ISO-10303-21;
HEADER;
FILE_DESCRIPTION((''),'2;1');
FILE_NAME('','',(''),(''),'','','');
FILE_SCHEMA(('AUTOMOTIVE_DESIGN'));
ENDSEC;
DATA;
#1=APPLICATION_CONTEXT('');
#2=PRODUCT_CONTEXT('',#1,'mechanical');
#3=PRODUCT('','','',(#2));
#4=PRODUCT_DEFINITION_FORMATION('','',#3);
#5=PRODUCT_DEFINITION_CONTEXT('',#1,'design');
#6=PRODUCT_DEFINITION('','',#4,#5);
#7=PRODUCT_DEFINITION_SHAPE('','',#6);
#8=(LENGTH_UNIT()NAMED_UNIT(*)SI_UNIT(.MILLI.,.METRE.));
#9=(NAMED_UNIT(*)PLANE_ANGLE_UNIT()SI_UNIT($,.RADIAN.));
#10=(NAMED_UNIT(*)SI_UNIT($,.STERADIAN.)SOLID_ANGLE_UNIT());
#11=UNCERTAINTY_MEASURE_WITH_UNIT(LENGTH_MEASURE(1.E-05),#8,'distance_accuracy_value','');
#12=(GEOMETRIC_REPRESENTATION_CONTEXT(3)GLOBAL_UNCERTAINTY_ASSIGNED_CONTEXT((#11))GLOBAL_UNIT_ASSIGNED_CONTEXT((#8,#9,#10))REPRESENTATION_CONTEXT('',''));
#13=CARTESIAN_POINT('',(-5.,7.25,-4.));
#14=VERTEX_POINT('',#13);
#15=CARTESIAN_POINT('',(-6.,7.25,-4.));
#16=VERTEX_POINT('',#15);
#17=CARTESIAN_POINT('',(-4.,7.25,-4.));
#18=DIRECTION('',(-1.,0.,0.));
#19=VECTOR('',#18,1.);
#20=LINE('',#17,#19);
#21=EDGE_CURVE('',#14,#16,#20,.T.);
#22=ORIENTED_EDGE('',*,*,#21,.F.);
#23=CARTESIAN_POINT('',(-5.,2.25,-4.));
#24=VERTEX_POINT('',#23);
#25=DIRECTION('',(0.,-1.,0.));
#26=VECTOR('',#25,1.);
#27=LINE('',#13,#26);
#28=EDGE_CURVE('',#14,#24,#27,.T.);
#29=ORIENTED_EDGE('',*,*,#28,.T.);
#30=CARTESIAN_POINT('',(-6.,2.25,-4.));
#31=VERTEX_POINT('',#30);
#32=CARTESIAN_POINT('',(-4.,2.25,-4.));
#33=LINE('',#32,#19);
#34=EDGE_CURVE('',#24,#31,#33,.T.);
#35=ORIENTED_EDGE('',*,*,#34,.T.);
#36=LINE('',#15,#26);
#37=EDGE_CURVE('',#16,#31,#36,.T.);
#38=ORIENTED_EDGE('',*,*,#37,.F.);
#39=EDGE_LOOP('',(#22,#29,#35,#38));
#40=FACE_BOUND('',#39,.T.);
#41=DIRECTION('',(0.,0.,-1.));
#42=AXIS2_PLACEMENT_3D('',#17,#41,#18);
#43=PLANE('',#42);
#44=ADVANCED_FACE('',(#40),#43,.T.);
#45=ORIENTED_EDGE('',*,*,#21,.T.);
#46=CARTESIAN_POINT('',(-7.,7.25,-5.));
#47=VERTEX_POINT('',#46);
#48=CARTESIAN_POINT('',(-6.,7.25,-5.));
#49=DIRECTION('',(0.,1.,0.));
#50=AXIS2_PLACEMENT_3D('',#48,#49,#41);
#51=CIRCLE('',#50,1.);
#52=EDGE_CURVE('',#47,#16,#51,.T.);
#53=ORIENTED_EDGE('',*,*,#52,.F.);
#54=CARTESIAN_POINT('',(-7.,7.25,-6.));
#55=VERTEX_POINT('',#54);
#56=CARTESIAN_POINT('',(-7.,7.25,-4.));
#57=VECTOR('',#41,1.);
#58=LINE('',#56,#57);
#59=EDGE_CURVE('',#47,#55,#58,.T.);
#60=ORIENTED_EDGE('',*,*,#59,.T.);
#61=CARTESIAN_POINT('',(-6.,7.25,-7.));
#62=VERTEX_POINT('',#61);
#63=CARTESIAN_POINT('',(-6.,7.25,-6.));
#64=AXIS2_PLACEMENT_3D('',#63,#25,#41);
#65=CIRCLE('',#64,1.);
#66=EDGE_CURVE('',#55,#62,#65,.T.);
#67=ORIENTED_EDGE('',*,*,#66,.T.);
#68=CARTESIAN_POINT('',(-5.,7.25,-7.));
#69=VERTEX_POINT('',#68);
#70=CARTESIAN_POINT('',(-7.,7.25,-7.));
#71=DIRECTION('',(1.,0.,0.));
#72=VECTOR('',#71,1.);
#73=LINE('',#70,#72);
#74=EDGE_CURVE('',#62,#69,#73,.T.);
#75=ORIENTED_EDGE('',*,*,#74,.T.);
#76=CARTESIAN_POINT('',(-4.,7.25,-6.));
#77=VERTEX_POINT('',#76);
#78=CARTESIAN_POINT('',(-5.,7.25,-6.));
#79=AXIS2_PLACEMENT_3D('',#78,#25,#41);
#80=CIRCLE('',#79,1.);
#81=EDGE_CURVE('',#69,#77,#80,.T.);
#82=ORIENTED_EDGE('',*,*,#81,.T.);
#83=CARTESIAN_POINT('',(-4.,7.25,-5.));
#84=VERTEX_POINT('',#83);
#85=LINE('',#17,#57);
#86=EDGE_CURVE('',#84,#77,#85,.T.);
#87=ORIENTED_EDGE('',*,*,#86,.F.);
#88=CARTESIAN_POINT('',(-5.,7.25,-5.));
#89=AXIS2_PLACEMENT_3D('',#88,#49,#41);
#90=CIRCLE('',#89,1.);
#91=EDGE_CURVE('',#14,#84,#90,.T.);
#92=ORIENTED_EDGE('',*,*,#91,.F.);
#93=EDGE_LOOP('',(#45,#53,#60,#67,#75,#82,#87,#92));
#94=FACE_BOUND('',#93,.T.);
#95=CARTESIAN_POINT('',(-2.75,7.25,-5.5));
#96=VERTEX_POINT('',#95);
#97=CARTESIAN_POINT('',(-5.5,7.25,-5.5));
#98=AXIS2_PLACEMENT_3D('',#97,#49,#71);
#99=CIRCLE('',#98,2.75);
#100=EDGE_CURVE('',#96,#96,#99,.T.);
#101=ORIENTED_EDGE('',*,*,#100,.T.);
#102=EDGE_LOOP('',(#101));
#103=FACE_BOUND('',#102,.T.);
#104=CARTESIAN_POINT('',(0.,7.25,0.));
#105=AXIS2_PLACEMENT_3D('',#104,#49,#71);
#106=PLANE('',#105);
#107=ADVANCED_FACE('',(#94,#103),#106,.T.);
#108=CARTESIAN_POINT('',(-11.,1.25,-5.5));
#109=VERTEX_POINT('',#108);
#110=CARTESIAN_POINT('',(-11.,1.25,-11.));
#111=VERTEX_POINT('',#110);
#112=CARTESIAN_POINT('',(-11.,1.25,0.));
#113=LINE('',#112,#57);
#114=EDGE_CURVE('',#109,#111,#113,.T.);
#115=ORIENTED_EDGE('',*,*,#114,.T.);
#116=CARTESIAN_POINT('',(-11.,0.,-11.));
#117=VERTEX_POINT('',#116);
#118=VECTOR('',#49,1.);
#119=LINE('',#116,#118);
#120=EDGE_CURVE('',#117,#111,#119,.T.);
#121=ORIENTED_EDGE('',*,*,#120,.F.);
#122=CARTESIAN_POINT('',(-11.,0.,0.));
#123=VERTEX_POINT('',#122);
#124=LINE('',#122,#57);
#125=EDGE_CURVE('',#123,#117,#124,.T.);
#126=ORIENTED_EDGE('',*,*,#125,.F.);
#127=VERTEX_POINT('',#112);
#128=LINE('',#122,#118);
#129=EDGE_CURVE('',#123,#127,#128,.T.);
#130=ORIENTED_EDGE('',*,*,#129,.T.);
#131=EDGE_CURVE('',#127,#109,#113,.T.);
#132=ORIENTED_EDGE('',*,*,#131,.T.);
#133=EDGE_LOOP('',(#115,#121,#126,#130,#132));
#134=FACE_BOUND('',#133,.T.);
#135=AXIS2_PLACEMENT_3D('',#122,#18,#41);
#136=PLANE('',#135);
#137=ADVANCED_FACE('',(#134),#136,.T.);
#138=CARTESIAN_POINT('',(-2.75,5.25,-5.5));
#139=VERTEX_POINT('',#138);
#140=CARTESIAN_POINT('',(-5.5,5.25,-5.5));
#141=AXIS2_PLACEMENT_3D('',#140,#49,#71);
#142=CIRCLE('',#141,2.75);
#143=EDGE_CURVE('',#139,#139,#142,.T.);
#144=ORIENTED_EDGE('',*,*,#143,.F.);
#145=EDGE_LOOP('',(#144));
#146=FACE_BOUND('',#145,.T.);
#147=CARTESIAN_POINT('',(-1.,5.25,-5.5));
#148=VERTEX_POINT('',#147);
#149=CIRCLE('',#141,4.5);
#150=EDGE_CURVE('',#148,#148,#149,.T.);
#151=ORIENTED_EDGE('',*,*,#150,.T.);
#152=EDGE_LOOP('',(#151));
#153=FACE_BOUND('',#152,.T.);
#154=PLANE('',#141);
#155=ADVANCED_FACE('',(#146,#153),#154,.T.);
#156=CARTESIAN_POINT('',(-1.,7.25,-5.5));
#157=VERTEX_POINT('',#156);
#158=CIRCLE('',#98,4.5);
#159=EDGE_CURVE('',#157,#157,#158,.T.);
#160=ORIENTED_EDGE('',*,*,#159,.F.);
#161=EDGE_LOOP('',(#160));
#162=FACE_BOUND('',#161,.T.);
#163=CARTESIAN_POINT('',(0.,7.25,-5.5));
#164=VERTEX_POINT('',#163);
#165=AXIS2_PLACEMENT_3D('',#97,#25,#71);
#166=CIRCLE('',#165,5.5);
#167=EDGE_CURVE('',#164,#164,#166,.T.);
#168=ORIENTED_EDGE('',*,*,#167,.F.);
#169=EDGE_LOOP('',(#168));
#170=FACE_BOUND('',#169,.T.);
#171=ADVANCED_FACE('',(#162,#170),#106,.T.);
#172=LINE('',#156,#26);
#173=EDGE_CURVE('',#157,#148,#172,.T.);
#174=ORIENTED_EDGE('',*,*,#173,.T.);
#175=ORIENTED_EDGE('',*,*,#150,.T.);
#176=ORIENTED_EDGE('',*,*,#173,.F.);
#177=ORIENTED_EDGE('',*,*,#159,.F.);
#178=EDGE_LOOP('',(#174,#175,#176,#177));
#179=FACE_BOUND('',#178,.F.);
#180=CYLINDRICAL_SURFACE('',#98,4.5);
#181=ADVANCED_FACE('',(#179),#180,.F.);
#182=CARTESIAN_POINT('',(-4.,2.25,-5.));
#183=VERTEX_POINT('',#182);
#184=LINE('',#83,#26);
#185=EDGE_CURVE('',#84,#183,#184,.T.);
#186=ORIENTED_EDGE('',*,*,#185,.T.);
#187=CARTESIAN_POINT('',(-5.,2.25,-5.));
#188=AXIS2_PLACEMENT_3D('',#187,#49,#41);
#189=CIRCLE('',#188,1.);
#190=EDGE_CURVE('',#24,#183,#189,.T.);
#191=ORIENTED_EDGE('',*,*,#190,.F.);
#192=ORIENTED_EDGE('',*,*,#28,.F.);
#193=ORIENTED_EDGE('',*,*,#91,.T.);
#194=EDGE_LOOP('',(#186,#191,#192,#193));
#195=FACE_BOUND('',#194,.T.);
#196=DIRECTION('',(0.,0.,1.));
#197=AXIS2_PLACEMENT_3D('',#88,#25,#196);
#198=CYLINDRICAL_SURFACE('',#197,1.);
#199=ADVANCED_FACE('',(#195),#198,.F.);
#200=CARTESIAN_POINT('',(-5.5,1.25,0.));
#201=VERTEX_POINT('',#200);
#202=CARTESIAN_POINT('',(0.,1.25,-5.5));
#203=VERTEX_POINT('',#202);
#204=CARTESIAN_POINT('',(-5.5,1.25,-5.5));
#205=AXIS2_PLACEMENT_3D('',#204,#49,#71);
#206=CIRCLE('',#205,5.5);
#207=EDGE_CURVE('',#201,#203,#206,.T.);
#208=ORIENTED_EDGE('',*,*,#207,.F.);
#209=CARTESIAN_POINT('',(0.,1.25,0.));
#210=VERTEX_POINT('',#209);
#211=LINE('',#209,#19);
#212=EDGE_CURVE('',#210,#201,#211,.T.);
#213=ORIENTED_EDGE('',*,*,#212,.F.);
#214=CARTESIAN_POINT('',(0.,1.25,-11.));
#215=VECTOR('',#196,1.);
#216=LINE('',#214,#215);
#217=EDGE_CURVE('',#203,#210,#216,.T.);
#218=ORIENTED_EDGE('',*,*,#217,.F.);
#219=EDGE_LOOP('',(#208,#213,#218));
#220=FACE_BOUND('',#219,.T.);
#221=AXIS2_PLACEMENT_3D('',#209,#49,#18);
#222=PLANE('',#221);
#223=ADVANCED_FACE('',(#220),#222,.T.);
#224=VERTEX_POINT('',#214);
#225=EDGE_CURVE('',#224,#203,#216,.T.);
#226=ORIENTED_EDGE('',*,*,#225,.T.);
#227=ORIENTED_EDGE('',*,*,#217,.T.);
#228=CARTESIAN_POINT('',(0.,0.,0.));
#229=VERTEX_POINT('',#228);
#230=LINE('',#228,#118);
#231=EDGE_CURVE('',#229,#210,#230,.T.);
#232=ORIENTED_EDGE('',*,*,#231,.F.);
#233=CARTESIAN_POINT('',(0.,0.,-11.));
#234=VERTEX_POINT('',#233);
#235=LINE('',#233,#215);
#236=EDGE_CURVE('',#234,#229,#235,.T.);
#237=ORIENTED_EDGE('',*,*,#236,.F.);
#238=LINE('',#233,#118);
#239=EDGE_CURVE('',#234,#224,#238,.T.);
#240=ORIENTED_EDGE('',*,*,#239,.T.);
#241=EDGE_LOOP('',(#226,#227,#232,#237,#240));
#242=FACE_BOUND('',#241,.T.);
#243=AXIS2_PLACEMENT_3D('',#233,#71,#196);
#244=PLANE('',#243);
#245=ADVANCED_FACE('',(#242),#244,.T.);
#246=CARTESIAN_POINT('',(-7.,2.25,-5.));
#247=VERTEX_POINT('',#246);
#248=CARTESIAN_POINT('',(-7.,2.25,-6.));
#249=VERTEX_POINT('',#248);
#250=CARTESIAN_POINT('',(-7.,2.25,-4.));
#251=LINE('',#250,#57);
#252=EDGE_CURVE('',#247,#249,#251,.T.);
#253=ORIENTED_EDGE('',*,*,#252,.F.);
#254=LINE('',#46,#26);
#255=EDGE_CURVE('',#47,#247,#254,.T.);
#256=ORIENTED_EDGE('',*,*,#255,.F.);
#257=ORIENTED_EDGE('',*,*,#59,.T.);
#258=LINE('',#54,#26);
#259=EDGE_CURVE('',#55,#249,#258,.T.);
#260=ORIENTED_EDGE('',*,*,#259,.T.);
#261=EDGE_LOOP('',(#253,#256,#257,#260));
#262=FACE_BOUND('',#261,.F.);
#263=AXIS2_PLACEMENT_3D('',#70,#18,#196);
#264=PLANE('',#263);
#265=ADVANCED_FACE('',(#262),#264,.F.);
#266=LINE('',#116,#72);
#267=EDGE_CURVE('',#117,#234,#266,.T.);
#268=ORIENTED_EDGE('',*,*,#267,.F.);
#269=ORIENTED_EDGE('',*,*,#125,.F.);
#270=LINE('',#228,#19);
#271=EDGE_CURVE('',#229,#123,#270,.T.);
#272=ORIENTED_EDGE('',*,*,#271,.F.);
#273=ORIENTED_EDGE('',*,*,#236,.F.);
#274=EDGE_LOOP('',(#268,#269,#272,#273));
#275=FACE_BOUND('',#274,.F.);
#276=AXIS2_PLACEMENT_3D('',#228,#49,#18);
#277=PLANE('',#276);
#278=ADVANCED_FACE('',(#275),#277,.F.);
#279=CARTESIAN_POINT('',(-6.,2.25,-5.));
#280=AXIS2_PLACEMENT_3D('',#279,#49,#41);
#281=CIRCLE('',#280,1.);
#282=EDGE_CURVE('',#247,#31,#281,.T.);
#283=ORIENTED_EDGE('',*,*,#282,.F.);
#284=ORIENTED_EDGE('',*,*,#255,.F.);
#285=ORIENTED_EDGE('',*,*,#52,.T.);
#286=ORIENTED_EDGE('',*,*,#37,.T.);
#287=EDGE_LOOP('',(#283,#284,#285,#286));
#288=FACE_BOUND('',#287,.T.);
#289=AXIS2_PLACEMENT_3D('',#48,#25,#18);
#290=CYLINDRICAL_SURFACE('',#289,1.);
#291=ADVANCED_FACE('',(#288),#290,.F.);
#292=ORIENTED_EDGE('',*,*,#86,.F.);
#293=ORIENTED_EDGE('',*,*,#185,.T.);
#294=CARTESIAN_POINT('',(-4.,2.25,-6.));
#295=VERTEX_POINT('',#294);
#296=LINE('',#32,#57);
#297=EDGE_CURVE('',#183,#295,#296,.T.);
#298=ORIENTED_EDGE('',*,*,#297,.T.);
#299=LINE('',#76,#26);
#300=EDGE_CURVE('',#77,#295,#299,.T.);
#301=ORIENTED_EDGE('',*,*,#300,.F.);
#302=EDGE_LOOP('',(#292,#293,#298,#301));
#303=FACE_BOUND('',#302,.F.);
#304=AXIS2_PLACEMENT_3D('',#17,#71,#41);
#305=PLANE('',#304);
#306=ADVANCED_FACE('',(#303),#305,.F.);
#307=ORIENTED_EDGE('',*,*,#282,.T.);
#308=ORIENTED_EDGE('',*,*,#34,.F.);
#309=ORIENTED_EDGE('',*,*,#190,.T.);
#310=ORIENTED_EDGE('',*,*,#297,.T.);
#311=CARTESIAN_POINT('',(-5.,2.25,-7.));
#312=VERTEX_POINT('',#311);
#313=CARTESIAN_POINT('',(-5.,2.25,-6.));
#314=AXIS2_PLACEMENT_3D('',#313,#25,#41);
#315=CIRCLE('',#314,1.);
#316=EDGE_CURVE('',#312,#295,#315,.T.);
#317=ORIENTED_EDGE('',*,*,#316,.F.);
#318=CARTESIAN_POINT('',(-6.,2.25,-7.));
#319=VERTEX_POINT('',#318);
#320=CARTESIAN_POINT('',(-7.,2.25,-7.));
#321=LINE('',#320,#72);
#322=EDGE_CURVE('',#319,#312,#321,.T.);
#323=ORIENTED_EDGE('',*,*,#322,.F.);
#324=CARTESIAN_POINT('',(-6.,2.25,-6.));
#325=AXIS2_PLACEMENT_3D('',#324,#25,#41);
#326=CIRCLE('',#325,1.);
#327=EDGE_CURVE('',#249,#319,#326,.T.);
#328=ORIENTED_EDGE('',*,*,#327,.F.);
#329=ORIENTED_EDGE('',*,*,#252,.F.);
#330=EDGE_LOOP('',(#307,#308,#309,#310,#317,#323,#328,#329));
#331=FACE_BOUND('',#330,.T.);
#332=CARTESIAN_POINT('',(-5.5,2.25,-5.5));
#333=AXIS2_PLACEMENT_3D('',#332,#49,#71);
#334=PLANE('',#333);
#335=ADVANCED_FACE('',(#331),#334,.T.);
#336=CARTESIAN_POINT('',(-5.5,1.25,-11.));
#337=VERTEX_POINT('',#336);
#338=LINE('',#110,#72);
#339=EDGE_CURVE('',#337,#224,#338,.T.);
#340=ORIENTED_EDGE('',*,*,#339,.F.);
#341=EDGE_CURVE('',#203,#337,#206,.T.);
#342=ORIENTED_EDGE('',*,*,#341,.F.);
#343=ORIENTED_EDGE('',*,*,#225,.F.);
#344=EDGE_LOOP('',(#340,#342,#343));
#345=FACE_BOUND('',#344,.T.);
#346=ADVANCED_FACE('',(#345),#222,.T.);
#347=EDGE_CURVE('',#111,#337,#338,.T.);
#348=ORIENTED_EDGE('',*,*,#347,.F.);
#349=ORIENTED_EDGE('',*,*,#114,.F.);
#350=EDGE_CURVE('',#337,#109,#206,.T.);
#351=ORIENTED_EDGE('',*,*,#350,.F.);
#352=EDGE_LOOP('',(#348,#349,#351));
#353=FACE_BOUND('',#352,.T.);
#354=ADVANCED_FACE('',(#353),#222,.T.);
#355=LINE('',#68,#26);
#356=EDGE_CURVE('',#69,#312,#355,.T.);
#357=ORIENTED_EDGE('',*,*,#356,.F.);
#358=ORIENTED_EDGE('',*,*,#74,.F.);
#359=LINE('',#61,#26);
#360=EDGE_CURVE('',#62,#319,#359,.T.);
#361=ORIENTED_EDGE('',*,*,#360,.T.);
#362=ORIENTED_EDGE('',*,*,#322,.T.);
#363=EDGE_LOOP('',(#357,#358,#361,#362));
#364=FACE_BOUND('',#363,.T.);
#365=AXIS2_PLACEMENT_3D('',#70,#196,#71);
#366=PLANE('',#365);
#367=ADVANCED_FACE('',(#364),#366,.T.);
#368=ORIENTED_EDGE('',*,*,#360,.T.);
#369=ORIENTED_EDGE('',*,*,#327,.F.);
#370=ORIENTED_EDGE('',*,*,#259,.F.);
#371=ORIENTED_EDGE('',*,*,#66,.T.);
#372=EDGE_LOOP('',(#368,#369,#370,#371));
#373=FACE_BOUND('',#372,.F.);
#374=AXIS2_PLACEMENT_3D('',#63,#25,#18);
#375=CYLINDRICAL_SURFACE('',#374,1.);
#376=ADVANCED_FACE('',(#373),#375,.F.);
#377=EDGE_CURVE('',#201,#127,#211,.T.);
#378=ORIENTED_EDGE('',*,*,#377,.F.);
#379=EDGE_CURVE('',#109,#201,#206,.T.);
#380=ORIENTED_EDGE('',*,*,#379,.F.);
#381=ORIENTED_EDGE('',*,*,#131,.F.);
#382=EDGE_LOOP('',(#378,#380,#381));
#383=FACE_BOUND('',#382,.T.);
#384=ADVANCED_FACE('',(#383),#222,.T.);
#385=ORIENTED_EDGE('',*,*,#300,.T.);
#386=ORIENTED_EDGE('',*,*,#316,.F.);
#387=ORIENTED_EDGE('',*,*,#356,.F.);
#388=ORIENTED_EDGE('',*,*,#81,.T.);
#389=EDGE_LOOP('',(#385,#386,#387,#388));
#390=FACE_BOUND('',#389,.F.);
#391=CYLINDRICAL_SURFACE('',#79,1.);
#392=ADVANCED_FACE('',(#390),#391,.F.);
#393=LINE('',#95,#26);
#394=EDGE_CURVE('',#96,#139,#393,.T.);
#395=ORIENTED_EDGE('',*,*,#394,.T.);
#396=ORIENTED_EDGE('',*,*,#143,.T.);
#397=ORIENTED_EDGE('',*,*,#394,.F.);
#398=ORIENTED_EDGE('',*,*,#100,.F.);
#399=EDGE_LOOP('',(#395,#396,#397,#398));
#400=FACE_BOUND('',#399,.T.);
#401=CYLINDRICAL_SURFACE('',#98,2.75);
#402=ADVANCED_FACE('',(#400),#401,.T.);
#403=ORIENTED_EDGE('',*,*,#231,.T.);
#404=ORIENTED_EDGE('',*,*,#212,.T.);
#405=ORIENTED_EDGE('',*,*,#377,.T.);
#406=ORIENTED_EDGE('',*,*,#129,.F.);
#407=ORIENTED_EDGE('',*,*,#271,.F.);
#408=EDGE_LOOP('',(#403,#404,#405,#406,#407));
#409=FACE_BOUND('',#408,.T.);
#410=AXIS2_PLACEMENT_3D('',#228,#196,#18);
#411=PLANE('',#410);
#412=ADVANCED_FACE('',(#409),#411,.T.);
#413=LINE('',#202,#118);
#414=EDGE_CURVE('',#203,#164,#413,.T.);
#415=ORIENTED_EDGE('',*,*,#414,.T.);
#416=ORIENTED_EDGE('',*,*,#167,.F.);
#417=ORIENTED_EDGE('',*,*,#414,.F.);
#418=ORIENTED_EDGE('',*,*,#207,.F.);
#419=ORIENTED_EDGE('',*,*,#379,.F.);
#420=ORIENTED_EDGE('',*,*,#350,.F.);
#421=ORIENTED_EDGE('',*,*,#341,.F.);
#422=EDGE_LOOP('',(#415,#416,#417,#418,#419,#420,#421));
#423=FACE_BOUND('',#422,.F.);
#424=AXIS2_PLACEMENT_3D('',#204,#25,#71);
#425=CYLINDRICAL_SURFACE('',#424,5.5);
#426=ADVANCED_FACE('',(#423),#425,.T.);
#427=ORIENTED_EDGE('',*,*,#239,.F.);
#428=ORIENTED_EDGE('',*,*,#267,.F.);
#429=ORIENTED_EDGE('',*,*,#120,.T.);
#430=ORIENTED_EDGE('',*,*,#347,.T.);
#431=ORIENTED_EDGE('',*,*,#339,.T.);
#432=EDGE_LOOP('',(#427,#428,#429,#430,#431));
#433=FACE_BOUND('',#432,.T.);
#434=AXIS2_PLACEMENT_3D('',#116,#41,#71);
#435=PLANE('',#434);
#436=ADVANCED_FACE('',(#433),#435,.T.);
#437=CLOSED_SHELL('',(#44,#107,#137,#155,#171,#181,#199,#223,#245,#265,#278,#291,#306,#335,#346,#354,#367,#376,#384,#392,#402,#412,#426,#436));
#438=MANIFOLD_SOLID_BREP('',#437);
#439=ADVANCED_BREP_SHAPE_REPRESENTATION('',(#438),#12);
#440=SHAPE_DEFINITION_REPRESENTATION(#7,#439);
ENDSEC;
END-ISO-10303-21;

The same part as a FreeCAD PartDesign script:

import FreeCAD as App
import Part
import Sketcher
from FreeCAD import Vector
Q = App.Units.Quantity


def edges_at(feature, points):
    """Names of the edges that pass closest to the given points."""
    edges = feature.Shape.Edges
    near = lambda p: min(range(len(edges)), key=lambda i: edges[i].distToShape(Part.Vertex(*p))[0])
    return sorted({f"Edge{near(p) + 1}" for p in points})


def add_polygon(sketch, points):
    """Adds a closed chain of lines whose ends are joined by coincident constraints."""
    first, n = sketch.GeometryCount, len(points)
    for a, b in zip(points, points[1:] + points[:1]):
        sketch.addGeometry(Part.LineSegment(App.Vector(*a, 0), App.Vector(*b, 0)), False)
    for i in range(n):
        sketch.addConstraint(Sketcher.Constraint("Coincident", first + i, 2, first + (i + 1) % n, 1))

doc = App.newDocument("Part")
body = doc.addObject("PartDesign::Body", "Body")

sketch1 = body.newObject("Sketcher::SketchObject", "Sketch")
sketch1.AttachmentSupport = (doc.getObject("XZ_Plane"), [""])
sketch1.MapMode = "FlatFace"
add_polygon(sketch1, [(-11, 0), (0, 0), (0, -11), (-11, -11)])
sketch1.addConstraint([
    Sketcher.Constraint("Horizontal", 0),
    Sketcher.Constraint("Vertical", 1),
    Sketcher.Constraint("Horizontal", 2),
    Sketcher.Constraint("Vertical", 3),
    Sketcher.Constraint("Coincident", 0, 2, -1, 1),
    Sketcher.Constraint("Equal", 2, 1),
    Sketcher.Constraint("DistanceX", 0, 1, 0, 2, Q("11 mm")),
])
pad1 = body.newObject("PartDesign::Pad", "Pad")
pad1.Profile = sketch1
pad1.Length = 1.25
pad1.Reversed = True

sketch2 = body.newObject("Sketcher::SketchObject", "Sketch001")
sketch2.AttachmentSupport = (doc.getObject("XZ_Plane"), [""])
sketch2.MapMode = "FlatFace"
sketch2.AttachmentOffset = App.Placement(Vector(0, 0, -1.25), App.Rotation())
sketch2.addGeometry(Part.Circle(Vector(-6, -6, 0), Vector(0, 0, 1), 6), False)
sketch2.addConstraint([
    Sketcher.Constraint("Diameter", 0, Q("11 mm")),
    Sketcher.Constraint("DistanceX", 0, 3, -1, 1, Q("5.5 mm")),
    Sketcher.Constraint("DistanceY", 0, 3, -1, 1, Q("5.5 mm")),
])
pad2 = body.newObject("PartDesign::Pad", "Pad001")
pad2.Profile = sketch2
pad2.Length = 6
pad2.Reversed = True

sketch3 = body.newObject("Sketcher::SketchObject", "Sketch002")
sketch3.AttachmentSupport = (doc.getObject("XZ_Plane"), [""])
sketch3.MapMode = "FlatFace"
sketch3.AttachmentOffset = App.Placement(Vector(0, 0, -7.25), App.Rotation())
add_polygon(sketch3, [(-7, -7), (-7, -4), (-4, -4), (-4, -7)])
sketch3.addConstraint([
    Sketcher.Constraint("Vertical", 0),
    Sketcher.Constraint("Horizontal", 1),
    Sketcher.Constraint("Vertical", 2),
    Sketcher.Constraint("Horizontal", 3),
    Sketcher.Constraint("Equal", 3, 0),
    Sketcher.Constraint("DistanceX", 1, 1, 1, 2, Q("3 mm")),
    Sketcher.Constraint("DistanceX", 0, 2, -1, 1, Q("7 mm")),
    Sketcher.Constraint("DistanceY", 0, 2, -1, 1, Q("4 mm")),
])
pocket1 = body.newObject("PartDesign::Pocket", "Pocket")
pocket1.Profile = sketch3
pocket1.Length = 5
pocket1.Reversed = True

sketch4 = body.newObject("Sketcher::SketchObject", "Sketch003")
sketch4.AttachmentSupport = (doc.getObject("XZ_Plane"), [""])
sketch4.MapMode = "FlatFace"
sketch4.AttachmentOffset = App.Placement(Vector(0, 0, -7.25), App.Rotation())
sketch4.addGeometry([
    Part.Circle(Vector(-5.5, -5.5, 0), Vector(0, 0, 1), 4.5),
    Part.Circle(Vector(-5.5, -5.5, 0), Vector(0, 0, 1), 2.8),
], False)
sketch4.addConstraint([
    Sketcher.Constraint("Coincident", 1, 3, 0, 3),
    Sketcher.Constraint("Diameter", 0, Q("9 mm")),
    Sketcher.Constraint("Diameter", 1, Q("5.5 mm")),
    Sketcher.Constraint("DistanceX", 0, 3, -1, 1, Q("5.5 mm")),
    Sketcher.Constraint("DistanceY", 0, 3, -1, 1, Q("5.5 mm")),
])
pocket2 = body.newObject("PartDesign::Pocket", "Pocket001")
pocket2.Profile = sketch4
pocket2.Length = 2
pocket2.Reversed = True
doc.recompute()

fillet = body.newObject("PartDesign::Fillet", "Fillet")
fillet.Base = (pocket2, edges_at(pocket2, [
    (-7, 4.75, -7),
    (-4, 4.75, -7),
    (-4, 4.75, -4),
    (-7, 4.75, -4),
]))
fillet.Radius = 1

doc.recompute()
